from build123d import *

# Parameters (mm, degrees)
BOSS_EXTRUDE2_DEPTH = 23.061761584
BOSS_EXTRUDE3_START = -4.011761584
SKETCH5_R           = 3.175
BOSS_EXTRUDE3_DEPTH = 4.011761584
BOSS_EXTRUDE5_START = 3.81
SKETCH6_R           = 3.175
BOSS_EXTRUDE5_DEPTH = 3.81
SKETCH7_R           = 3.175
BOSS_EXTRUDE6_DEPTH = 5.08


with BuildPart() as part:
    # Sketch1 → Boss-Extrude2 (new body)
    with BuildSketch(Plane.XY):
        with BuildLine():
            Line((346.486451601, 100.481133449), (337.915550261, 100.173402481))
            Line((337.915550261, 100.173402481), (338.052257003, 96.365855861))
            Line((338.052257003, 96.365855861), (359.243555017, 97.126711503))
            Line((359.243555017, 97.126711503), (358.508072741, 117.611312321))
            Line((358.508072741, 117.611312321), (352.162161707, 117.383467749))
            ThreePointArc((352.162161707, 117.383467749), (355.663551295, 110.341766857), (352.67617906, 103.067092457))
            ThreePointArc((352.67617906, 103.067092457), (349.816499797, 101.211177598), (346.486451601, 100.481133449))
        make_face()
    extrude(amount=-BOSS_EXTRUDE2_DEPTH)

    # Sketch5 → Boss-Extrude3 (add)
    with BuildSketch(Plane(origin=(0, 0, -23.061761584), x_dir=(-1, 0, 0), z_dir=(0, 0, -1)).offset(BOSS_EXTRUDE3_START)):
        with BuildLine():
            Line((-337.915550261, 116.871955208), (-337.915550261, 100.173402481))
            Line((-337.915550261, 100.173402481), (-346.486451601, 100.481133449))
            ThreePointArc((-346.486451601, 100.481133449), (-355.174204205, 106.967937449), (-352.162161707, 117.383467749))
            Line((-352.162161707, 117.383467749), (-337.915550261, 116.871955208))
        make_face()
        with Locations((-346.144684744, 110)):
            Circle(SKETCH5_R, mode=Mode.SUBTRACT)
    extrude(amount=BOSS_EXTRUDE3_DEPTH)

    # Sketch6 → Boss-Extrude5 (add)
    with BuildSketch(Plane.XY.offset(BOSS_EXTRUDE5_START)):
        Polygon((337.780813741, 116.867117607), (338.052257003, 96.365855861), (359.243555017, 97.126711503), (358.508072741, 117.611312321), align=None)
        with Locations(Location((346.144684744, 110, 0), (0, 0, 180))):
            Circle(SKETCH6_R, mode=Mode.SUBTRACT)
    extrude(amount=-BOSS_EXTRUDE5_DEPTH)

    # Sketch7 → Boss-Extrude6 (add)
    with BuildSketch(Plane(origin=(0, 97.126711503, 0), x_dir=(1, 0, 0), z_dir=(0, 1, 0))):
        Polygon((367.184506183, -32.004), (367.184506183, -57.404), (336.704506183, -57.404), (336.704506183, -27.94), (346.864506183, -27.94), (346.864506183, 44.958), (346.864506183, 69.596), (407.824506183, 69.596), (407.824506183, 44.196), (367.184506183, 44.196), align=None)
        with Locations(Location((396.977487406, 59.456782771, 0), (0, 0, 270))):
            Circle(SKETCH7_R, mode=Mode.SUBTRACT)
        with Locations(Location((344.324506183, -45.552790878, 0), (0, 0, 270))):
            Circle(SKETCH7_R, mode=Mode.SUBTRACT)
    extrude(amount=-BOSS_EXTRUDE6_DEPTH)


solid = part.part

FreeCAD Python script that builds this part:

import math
import FreeCAD as App
import Part
import Sketcher

V = App.Vector
Q = App.Units.Quantity


def add_polygon(sketch, points):
    """Adds a closed chain of lines whose ends are joined by coincident constraints."""
    first, n = sketch.GeometryCount, len(points)
    for a, b in zip(points, points[1:] + points[:1]):
        sketch.addGeometry(Part.LineSegment(App.Vector(*a, 0), App.Vector(*b, 0)), False)
    for i in range(n):
        sketch.addConstraint(Sketcher.Constraint("Coincident", first + i, 2, first + (i + 1) % n, 1))

doc = App.newDocument("Part")
body = doc.addObject("PartDesign::Body", "Body")

# Sketch on XY plane
sketch1 = body.newObject("Sketcher::SketchObject", "Sketch")
sketch1.AttachmentSupport = (doc.getObject("XY_Plane"), [""])
sketch1.MapMode = "FlatFace"
sketch1.addGeometry([
    Part.LineSegment(V(346.5, 100.5, 0), V(337.9, 100.2, 0)),  # 0
    Part.LineSegment(V(337.9, 100.2, 0), V(338.1, 96.4, 0)),  # 1
    Part.LineSegment(V(338.1, 96.4, 0), V(359.2, 97.1, 0)),  # 2
    Part.LineSegment(V(359.2, 97.1, 0), V(358.5, 117.6, 0)),  # 3
    Part.LineSegment(V(358.5, 117.6, 0), V(352.2, 117.4, 0)),  # 4
    Part.ArcOfCircle(Part.Circle(V(346.1, 110, 0), V(0, 0, 1), 9.5), math.radians(-47), math.radians(51)),  # 5
    Part.ArcOfCircle(Part.Circle(V(346.1, 110, 0), V(0, 0, 1), 9.5), math.radians(-88), math.radians(-47)),  # 6
], False)
sketch1.addConstraint([
    Sketcher.Constraint("Coincident", 0, 2, 1, 1),
    Sketcher.Constraint("Coincident", 1, 2, 2, 1),
    Sketcher.Constraint("Coincident", 2, 2, 3, 1),
    Sketcher.Constraint("Coincident", 3, 2, 4, 1),
    Sketcher.Constraint("Coincident", 4, 2, 5, 2),
    Sketcher.Constraint("Tangent", 5, 1, 6, 2),
    Sketcher.Constraint("Tangent", 6, 1, 0, 1),
    Sketcher.Constraint("Equal", 5, 6),
    Sketcher.Constraint("Perpendicular", 0, 1),
    Sketcher.Constraint("Perpendicular", 1, 2),
    Sketcher.Constraint("Perpendicular", 2, 3),
    Sketcher.Constraint("Perpendicular", 3, 4),
    Sketcher.Constraint("Radius", 5, Q("0.375 in")),
    Sketcher.Constraint("Distance", 1, Q("0.15 in")),
    Sketcher.Constraint("Distance", 4, Q("0.25 in")),
    Sketcher.Constraint("Distance", 3, Q("0.807 in")),
    Sketcher.Constraint("DistanceY", -1, 1, 5, 3, 110.0),
    Sketcher.Constraint("DistanceX", 1, 2, 2, 2, 21.191298),
    Sketcher.Constraint("DistanceY", 2, 2, 3, 2, 20.484601),
    Sketcher.Constraint("DistanceX", -1, 1, 0, 2, 337.91555),
    Sketcher.Constraint("DistanceX", -1, 1, 5, 1, 352.676179),
])
pad1 = body.newObject("PartDesign::Pad", "Pad")
pad1.Profile = sketch1
pad1.Length = 23.061762
pad1.Reversed = True

# Sketch on XY plane
sketch2 = body.newObject("Sketcher::SketchObject", "Sketch001")
sketch2.AttachmentSupport = (doc.getObject("XY_Plane"), [""])
sketch2.MapMode = "FlatFace"
sketch2.AttachmentOffset = App.Placement(V(0, 0, -0.75 * 25.4), App.Rotation())
sketch2.addGeometry([
    Part.LineSegment(V(337.9, 100.2, 0), V(337.9, 116.9, 0)),  # 0
    Part.LineSegment(V(337.9, 116.9, 0), V(352.2, 117.4, 0)),  # 1
    Part.ArcOfCircle(Part.Circle(V(346.1, 110, 0), V(0, 0, 1), 9.5), math.radians(-88), math.radians(51)),  # 2
    Part.LineSegment(V(346.5, 100.5, 0), V(337.9, 100.2, 0)),  # 3
    Part.Circle(V(346.1, 110, 0), V(0, 0, 1), 3.2),  # 4
], False)
sketch2.addConstraint([
    Sketcher.Constraint("Coincident", 0, 2, 1, 1),
    Sketcher.Constraint("Coincident", 1, 2, 2, 2),
    Sketcher.Constraint("Tangent", 2, 1, 3, 1),
    Sketcher.Constraint("Coincident", 3, 2, 0, 1),
    Sketcher.Constraint("Vertical", 0),
    Sketcher.Constraint("Coincident", 4, 3, 2, 3),
    Sketcher.Constraint("Parallel", 1, 3),
    Sketcher.Constraint("Diameter", 4, Q("0.25 in")),
    Sketcher.Constraint("Radius", 2, Q("0.375 in")),
    Sketcher.Constraint("DistanceY", -1, 1, 2, 3, 110.0),
    Sketcher.Constraint("DistanceX", 0, 2, 2, 1, 8.570901),
    Sketcher.Constraint("Distance", 1, 14.255791),
    Sketcher.Constraint("DistanceY", 0, 1, 0, 2, 16.698553),
    Sketcher.Constraint("DistanceX", -1, 1, 0, 2, 337.91555),
])
pad2 = body.newObject("PartDesign::Pad", "Pad001")
pad2.Profile = sketch2
pad2.Length = 4.011762
pad2.Reversed = True

# Sketch on XY plane
sketch3 = body.newObject("Sketcher::SketchObject", "Sketch002")
sketch3.AttachmentSupport = (doc.getObject("XY_Plane"), [""])
sketch3.MapMode = "FlatFace"
sketch3.AttachmentOffset = App.Placement(V(0, 0, 0.15 * 25.4), App.Rotation())
add_polygon(sketch3, [(337.780814, 116.867118), (338.052257, 96.365856), (359.243555, 97.126712), (358.508073, 117.611312)])  # lines 0-3
sketch3.addGeometry(Part.Circle(V(346.144685, 110, 0), V(0, 0, 1), 3.175), False)  # 4
sketch3.addConstraint([
    Sketcher.Constraint("Perpendicular", 1, 2),
    Sketcher.Constraint("Perpendicular", 2, 3),
    Sketcher.Constraint("Diameter", 4, Q("0.25 in")),
    Sketcher.Constraint("Distance", 2, Q("0.807 in")),
    Sketcher.Constraint("DistanceY", -1, 1, 4, 3, 110.0),
    Sketcher.Constraint("DistanceX", 0, 2, 1, 2, 21.191298),
    Sketcher.Constraint("DistanceY", 1, 2, 2, 2, 20.484601),
    Sketcher.Constraint("Distance", 0, 20.503059),
    Sketcher.Constraint("DistanceY", -1, 1, 1, 2, 97.126712),
    Sketcher.Constraint("DistanceX", 4, 3, 1, 2, 13.09887),
    Sketcher.Constraint("DistanceX", -1, 1, 4, 3, 346.144685),
])
pad3 = body.newObject("PartDesign::Pad", "Pad002")
pad3.Profile = sketch3
pad3.Length = Q("0.15 in")
pad3.Reversed = True

# Sketch on XZ plane
sketch4 = body.newObject("Sketcher::SketchObject", "Sketch003")
sketch4.AttachmentSupport = (doc.getObject("XZ_Plane"), [""])
sketch4.MapMode = "FlatFace"
sketch4.AttachmentOffset = App.Placement(V(0, 0, -97.126712), App.Rotation())
add_polygon(sketch4, [(367.2, 57.4), (367.2, -44.2), (407.8, -44.2), (407.8, -69.6), (346.9, -69.6), (346.9, 27.9), (336.7, 27.9), (336.7, 57.4)])  # lines 0-7
sketch4.addGeometry(Part.Circle(V(344.3, 45.6, 0), V(0, 0, 1), 3.2), False)  # 8
sketch4.addGeometry(Part.Circle(V(397, -59.5, 0), V(0, 0, 1), 3.2), False)  # 9
sketch4.addConstraint([
    Sketcher.Constraint("Vertical", 0),
    Sketcher.Constraint("Horizontal", 1),
    Sketcher.Constraint("Vertical", 2),
    Sketcher.Constraint("Horizontal", 3),
    Sketcher.Constraint("Vertical", 4),
    Sketcher.Constraint("Horizontal", 5),
    Sketcher.Constraint("Vertical", 6),
    Sketcher.Constraint("Horizontal", 7),
    Sketcher.Constraint("Equal", 8, 9),
    Sketcher.Constraint("Diameter", 8, Q("0.25 in")),
    Sketcher.Constraint("DistanceY", 0, 2, 0, 1, Q("4 in")),
    Sketcher.Constraint("DistanceY", 2, 2, 2, 1, Q("1 in")),
    Sketcher.Constraint("DistanceX", 1, 1, 1, 2, Q("1.6 in")),
    Sketcher.Constraint("DistanceX", 3, 2, 3, 1, Q("2.4 in")),
    Sketcher.Constraint("DistanceX", 5, 2, 5, 1, Q("0.4 in")),
    Sketcher.Constraint("DistanceY", 4, 1, 4, 2, Q("3.84 in")),
    Sketcher.Constraint("DistanceY", -1, 1, 4, 2, Q("1.1 in")),
    Sketcher.Constraint("DistanceX", 8, 3, 0, 2, Q("0.9 in")),
    Sketcher.Constraint("DistanceY", -1, 1, 8, 3, 45.552791),
    Sketcher.Constraint("DistanceX", 8, 3, 9, 3, 52.652981),
    Sketcher.Constraint("DistanceX", -1, 1, 8, 3, 344.324506),
    Sketcher.Constraint("DistanceY", 9, 3, -1, 1, 59.456783),
])
pad4 = body.newObject("PartDesign::Pad", "Pad003")
pad4.Profile = sketch4
pad4.Length = Q("0.2 in")

doc.recompute()
